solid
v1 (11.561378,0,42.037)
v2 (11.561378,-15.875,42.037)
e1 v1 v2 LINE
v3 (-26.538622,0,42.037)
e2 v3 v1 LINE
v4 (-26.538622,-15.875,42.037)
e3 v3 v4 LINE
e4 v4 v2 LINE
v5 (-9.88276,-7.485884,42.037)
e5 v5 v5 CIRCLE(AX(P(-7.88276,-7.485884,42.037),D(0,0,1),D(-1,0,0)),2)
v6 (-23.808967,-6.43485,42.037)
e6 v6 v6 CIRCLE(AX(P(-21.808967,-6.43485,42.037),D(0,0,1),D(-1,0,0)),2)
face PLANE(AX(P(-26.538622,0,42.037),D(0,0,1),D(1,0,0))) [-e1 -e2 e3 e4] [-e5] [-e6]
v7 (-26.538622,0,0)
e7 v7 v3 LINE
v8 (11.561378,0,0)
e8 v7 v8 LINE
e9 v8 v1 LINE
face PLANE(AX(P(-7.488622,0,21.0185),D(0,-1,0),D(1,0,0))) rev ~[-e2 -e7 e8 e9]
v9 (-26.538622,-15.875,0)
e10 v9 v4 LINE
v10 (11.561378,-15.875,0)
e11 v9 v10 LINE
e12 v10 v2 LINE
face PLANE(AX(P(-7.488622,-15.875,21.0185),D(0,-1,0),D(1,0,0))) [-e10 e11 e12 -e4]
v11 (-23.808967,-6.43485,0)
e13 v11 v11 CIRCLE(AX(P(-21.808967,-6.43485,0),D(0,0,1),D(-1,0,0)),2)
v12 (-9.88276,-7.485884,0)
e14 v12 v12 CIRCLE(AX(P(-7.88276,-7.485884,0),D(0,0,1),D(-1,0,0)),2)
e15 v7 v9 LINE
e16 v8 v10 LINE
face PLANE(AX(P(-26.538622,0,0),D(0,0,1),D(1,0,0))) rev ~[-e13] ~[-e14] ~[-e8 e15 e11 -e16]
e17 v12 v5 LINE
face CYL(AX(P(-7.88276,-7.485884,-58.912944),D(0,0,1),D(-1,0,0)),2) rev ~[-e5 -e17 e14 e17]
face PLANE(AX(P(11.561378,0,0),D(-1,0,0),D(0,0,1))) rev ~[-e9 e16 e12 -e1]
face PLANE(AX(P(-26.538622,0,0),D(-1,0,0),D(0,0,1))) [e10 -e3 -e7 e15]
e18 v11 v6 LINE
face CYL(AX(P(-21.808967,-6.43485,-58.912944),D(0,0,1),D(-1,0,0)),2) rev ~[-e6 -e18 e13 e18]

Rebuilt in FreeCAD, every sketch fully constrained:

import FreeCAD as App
import Part
import Sketcher

V = App.Vector
Q = App.Units.Quantity

doc = App.newDocument("Part")
body = doc.addObject("PartDesign::Body", "Body")

sketch1 = body.newObject("Sketcher::SketchObject", "Sketch")
sketch1.AttachmentSupport = (doc.getObject("XZ_Plane"), [""])
sketch1.MapMode = "FlatFace"
sketch1.addGeometry([
    Part.LineSegment(V(-26.538622, 42.037, 0), V(-26.538622, 0, 0)),
    Part.LineSegment(V(-26.538622, 0, 0), V(11.561378, 0, 0)),
    Part.LineSegment(V(11.561378, 0, 0), V(11.561378, 42.037, 0)),
    Part.LineSegment(V(11.561378, 42.037, 0), V(-26.538622, 42.037, 0)),
], False)
sketch1.addConstraint([
    Sketcher.Constraint("Coincident", 0, 2, 1, 1),
    Sketcher.Constraint("Coincident", 1, 2, 2, 1),
    Sketcher.Constraint("Coincident", 2, 2, 3, 1),
    Sketcher.Constraint("Coincident", 3, 2, 0, 1),
    Sketcher.Constraint("Vertical", 0),
    Sketcher.Constraint("Horizontal", 1),
    Sketcher.Constraint("Vertical", 2),
    Sketcher.Constraint("Horizontal", 3),
    Sketcher.Constraint("PointOnObject", 0, 2, -1),
    Sketcher.Constraint("DistanceX", 1, 1, 1, 2, Q("1.5 in")),
    Sketcher.Constraint("DistanceY", 0, 2, 0, 1, Q("1.655 in")),
    Sketcher.Constraint("DistanceX", 0, 2, -1, 1, Q("26.538622 mm")),
])
pad1 = body.newObject("PartDesign::Pad", "Pad")
pad1.Profile = sketch1
pad1.Length = Q("0.625 in")

sketch2 = body.newObject("Sketcher::SketchObject", "Sketch001")
sketch2.AttachmentSupport = (doc.getObject("XY_Plane"), [""])
sketch2.MapMode = "FlatFace"
sketch2.addGeometry([
    Part.Circle(V(-7.88276, -7.485884, 0), V(0, 0, 1), 2),
    Part.Circle(V(-21.808967, -6.43485, 0), V(0, 0, 1), 2),
], False)
sketch2.addConstraint([
    Sketcher.Constraint("Equal", 0, 1),
    Sketcher.Constraint("Diameter", 0, Q("4 mm")),
    Sketcher.Constraint("DistanceX", 0, 3, -1, 1, Q("7.88276 mm")),
    Sketcher.Constraint("DistanceY", 1, 3, -1, 1, Q("6.43485 mm")),
    Sketcher.Constraint("DistanceY", 0, 3, -1, 1, Q("7.485884 mm")),
    Sketcher.Constraint("DistanceX", 1, 3, -1, 1, Q("21.808967 mm")),
])
doc.recompute()
hole = body.newObject("PartDesign::Hole", "Hole")
hole.Profile = sketch2
hole.ThreadType = "None"
hole.Diameter = 4
hole.DepthType = "ThroughAll"
hole.Reversed = True

doc.recompute()
